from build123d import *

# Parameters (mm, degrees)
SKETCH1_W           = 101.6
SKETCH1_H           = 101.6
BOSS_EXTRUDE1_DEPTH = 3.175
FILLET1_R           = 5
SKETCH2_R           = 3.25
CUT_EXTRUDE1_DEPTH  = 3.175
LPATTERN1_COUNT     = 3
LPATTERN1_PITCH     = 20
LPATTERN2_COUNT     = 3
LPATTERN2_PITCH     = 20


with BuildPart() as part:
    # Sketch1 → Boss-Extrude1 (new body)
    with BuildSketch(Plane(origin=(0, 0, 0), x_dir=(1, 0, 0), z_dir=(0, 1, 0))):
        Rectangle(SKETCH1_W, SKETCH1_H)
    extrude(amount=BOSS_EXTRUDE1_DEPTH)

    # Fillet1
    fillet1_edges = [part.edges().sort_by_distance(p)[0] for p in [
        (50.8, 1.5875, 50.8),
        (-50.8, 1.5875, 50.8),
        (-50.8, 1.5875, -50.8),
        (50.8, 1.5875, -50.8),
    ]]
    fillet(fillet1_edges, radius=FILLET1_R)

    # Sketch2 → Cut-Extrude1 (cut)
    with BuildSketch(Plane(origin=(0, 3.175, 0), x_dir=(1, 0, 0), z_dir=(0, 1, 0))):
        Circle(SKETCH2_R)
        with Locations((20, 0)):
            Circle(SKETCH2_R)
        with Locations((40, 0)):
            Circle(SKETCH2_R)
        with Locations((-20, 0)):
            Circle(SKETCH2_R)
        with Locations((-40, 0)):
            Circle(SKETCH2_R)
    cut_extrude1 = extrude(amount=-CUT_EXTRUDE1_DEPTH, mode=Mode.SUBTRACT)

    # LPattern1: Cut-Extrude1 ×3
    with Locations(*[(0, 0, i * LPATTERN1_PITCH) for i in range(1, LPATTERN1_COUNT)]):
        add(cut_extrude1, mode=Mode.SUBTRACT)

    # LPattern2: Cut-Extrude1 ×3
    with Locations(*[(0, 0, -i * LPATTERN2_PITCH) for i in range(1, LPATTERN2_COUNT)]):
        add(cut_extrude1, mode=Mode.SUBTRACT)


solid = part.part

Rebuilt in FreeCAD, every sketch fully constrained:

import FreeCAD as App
import Part
import Sketcher
Q = App.Units.Quantity


def edges_at(feature, points):
    """Names of the edges that pass closest to the given points."""
    edges = feature.Shape.Edges
    near = lambda p: min(range(len(edges)), key=lambda i: edges[i].distToShape(Part.Vertex(*p))[0])
    return sorted({f"Edge{near(p) + 1}" for p in points})


def add_polygon(sketch, points):
    """Adds a closed chain of lines whose ends are joined by coincident constraints."""
    first, n = sketch.GeometryCount, len(points)
    for a, b in zip(points, points[1:] + points[:1]):
        sketch.addGeometry(Part.LineSegment(App.Vector(*a, 0), App.Vector(*b, 0)), False)
    for i in range(n):
        sketch.addConstraint(Sketcher.Constraint("Coincident", first + i, 2, first + (i + 1) % n, 1))

doc = App.newDocument("Part")
body = doc.addObject("PartDesign::Body", "Body")

# Sketch on XZ plane
sketch1 = body.newObject("Sketcher::SketchObject", "Sketch")
sketch1.AttachmentSupport = (doc.getObject("XZ_Plane"), [""])
sketch1.MapMode = "FlatFace"
add_polygon(sketch1, [(-51, -51), (-51, 51), (51, 51), (51, -51)])  # lines 0-3
sketch1.addConstraint([
    Sketcher.Constraint("Vertical", 0),
    Sketcher.Constraint("Horizontal", 1),
    Sketcher.Constraint("Vertical", 2),
    Sketcher.Constraint("Horizontal", 3),
    Sketcher.Constraint("Symmetric", 0, 2, 2, 2, -1, 1),
    Sketcher.Constraint("Equal", 3, 0),
    Sketcher.Constraint("DistanceX", 1, 1, 1, 2, Q("101.6 mm")),
])
pad1 = body.newObject("PartDesign::Pad", "Pad")
pad1.Profile = sketch1
pad1.Length = 3.175
pad1.Reversed = True
doc.recompute()

fillet = body.newObject("PartDesign::Fillet", "Fillet")
fillet.Base = (pad1, edges_at(pad1, [
    (50.8, 1.587, 50.8),
    (-50.8, 1.587, 50.8),
    (-50.8, 1.587, -50.8),
    (50.8, 1.587, -50.8),
]))
fillet.Radius = 5

# Sketch on XZ plane
sketch2 = body.newObject("Sketcher::SketchObject", "Sketch001")
sketch2.AttachmentSupport = (doc.getObject("XZ_Plane"), [""])
sketch2.MapMode = "FlatFace"
sketch2.AttachmentOffset = App.Placement(App.Vector(0, 0, -3.175), App.Rotation())
sketch2.addGeometry([
    Part.Circle(App.Vector(0, 0, 0), App.Vector(0, 0, 1), 3.2),  # 0
    Part.Circle(App.Vector(20, 0, 0), App.Vector(0, 0, 1), 3.2),  # 1
    Part.Circle(App.Vector(40, 0, 0), App.Vector(0, 0, 1), 3.2),  # 2
    Part.Circle(App.Vector(-20, 0, 0), App.Vector(0, 0, 1), 3.2),  # 3
    Part.Circle(App.Vector(-40, 0, 0), App.Vector(0, 0, 1), 3.2),  # 4
], False)
sketch2.addConstraint([
    Sketcher.Constraint("Coincident", 0, 3, -1, 1),
    Sketcher.Constraint("Equal", 0, 1),
    Sketcher.Constraint("Equal", 1, 2),
    Sketcher.Constraint("Equal", 2, 3),
    Sketcher.Constraint("Equal", 3, 4),
    Sketcher.Constraint("Symmetric", 1, 3, 3, 3, -1, 1),
    Sketcher.Constraint("Symmetric", 2, 3, 4, 3, -1, 1),
    Sketcher.Constraint("PointOnObject", 1, 3, -1),
    Sketcher.Constraint("PointOnObject", 2, 3, -1),
    Sketcher.Constraint("Diameter", 0, Q("6.5 mm")),
    Sketcher.Constraint("DistanceX", -1, 1, 1, 3, Q("20 mm")),
    Sketcher.Constraint("DistanceX", -1, 1, 2, 3, Q("40 mm")),
])
pocket1 = body.newObject("PartDesign::Pocket", "Pocket")
pocket1.Profile = sketch2
pocket1.Length = 3.175
pocket1.Reversed = True
doc.recompute()

linearpattern = body.newObject("PartDesign::LinearPattern", "LinearPattern")
linearpattern.Originals = [pocket1]
linearpattern.Direction = (doc.getObject("Z_Axis"), [""])
linearpattern.Mode = "offset"
linearpattern.Offset = 20
linearpattern.Occurrences = 3
body.Tip = linearpattern
doc.recompute()

linearpattern2 = body.newObject("PartDesign::LinearPattern", "LinearPattern001")
linearpattern2.Originals = [pocket1]
linearpattern2.Direction = (doc.getObject("Z_Axis"), [""])
linearpattern2.Mode = "offset"
linearpattern2.Offset = 20
linearpattern2.Occurrences = 3
linearpattern2.Reversed = True
body.Tip = linearpattern2

doc.recompute()
